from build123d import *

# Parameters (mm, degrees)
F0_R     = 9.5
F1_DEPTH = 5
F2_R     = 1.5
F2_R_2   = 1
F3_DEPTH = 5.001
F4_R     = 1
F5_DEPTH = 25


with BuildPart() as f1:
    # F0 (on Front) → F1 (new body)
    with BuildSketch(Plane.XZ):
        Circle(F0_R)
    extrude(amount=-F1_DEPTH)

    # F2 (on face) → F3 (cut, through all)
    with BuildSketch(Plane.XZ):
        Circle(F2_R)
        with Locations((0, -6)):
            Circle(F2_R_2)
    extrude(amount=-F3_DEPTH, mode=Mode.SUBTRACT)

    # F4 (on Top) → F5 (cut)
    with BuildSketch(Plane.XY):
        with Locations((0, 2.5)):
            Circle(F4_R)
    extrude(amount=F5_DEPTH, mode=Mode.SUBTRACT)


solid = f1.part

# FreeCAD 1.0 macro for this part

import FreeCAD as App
import Part
import Sketcher

V = App.Vector
Q = App.Units.Quantity

doc = App.newDocument("Part")
body = doc.addObject("PartDesign::Body", "Body")

# Sketch on XZ plane
sketch1 = doc.addObject("Sketcher::SketchObject", "Sketch")
body.addObject(sketch1)
sketch1.AttachmentSupport = (doc.XZ_Plane, [""])
sketch1.MapMode = "FlatFace"
sketch1.addGeometry(Part.Circle(V(0, 0, 0), V(0, 0, 1), 10), False)
sketch1.addConstraint([
    Sketcher.Constraint("Coincident", 0, 3, -1, 1),
    Sketcher.Constraint("Diameter", 0, Q("19 mm")),
])
pad1 = doc.addObject("PartDesign::Pad", "Pad")
body.addObject(pad1)
pad1.Profile = sketch1
pad1.Length = 5
pad1.Reversed = True

# Sketch on XZ plane
sketch2 = doc.addObject("Sketcher::SketchObject", "Sketch001")
body.addObject(sketch2)
sketch2.AttachmentSupport = (doc.XZ_Plane, [""])
sketch2.MapMode = "FlatFace"
sketch2.addGeometry([
    Part.Circle(V(0, 0, 0), V(0, 0, 1), 1.5),
    Part.Circle(V(0, -6, 0), V(0, 0, 1), 1),
], False)
sketch2.addConstraint([
    Sketcher.Constraint("Coincident", 0, 3, -1, 1),
    Sketcher.Constraint("PointOnObject", 1, 3, -2),
    Sketcher.Constraint("Diameter", 0, Q("3 mm")),
    Sketcher.Constraint("Diameter", 1, Q("2 mm")),
    Sketcher.Constraint("DistanceY", 1, 3, -1, 1, Q("6 mm")),
])
pocket1 = doc.addObject("PartDesign::Pocket", "Pocket")
body.addObject(pocket1)
pocket1.Profile = sketch2
pocket1.Type = "ThroughAll"

# Sketch on XY plane
sketch3 = doc.addObject("Sketcher::SketchObject", "Sketch002")
body.addObject(sketch3)
sketch3.AttachmentSupport = (doc.XY_Plane, [""])
sketch3.MapMode = "FlatFace"
sketch3.addGeometry(Part.Circle(V(0, 2.5, 0), V(0, 0, 1), 1), False)
sketch3.addConstraint([
    Sketcher.Constraint("PointOnObject", 0, 3, -2),
    Sketcher.Constraint("Diameter", 0, Q("2 mm")),
    Sketcher.Constraint("DistanceY", -1, 1, 0, 3, Q("2.5 mm")),
])
pocket2 = doc.addObject("PartDesign::Pocket", "Pocket001")
body.addObject(pocket2)
pocket2.Profile = sketch3
pocket2.Length = 25
pocket2.Reversed = True

doc.recompute()
